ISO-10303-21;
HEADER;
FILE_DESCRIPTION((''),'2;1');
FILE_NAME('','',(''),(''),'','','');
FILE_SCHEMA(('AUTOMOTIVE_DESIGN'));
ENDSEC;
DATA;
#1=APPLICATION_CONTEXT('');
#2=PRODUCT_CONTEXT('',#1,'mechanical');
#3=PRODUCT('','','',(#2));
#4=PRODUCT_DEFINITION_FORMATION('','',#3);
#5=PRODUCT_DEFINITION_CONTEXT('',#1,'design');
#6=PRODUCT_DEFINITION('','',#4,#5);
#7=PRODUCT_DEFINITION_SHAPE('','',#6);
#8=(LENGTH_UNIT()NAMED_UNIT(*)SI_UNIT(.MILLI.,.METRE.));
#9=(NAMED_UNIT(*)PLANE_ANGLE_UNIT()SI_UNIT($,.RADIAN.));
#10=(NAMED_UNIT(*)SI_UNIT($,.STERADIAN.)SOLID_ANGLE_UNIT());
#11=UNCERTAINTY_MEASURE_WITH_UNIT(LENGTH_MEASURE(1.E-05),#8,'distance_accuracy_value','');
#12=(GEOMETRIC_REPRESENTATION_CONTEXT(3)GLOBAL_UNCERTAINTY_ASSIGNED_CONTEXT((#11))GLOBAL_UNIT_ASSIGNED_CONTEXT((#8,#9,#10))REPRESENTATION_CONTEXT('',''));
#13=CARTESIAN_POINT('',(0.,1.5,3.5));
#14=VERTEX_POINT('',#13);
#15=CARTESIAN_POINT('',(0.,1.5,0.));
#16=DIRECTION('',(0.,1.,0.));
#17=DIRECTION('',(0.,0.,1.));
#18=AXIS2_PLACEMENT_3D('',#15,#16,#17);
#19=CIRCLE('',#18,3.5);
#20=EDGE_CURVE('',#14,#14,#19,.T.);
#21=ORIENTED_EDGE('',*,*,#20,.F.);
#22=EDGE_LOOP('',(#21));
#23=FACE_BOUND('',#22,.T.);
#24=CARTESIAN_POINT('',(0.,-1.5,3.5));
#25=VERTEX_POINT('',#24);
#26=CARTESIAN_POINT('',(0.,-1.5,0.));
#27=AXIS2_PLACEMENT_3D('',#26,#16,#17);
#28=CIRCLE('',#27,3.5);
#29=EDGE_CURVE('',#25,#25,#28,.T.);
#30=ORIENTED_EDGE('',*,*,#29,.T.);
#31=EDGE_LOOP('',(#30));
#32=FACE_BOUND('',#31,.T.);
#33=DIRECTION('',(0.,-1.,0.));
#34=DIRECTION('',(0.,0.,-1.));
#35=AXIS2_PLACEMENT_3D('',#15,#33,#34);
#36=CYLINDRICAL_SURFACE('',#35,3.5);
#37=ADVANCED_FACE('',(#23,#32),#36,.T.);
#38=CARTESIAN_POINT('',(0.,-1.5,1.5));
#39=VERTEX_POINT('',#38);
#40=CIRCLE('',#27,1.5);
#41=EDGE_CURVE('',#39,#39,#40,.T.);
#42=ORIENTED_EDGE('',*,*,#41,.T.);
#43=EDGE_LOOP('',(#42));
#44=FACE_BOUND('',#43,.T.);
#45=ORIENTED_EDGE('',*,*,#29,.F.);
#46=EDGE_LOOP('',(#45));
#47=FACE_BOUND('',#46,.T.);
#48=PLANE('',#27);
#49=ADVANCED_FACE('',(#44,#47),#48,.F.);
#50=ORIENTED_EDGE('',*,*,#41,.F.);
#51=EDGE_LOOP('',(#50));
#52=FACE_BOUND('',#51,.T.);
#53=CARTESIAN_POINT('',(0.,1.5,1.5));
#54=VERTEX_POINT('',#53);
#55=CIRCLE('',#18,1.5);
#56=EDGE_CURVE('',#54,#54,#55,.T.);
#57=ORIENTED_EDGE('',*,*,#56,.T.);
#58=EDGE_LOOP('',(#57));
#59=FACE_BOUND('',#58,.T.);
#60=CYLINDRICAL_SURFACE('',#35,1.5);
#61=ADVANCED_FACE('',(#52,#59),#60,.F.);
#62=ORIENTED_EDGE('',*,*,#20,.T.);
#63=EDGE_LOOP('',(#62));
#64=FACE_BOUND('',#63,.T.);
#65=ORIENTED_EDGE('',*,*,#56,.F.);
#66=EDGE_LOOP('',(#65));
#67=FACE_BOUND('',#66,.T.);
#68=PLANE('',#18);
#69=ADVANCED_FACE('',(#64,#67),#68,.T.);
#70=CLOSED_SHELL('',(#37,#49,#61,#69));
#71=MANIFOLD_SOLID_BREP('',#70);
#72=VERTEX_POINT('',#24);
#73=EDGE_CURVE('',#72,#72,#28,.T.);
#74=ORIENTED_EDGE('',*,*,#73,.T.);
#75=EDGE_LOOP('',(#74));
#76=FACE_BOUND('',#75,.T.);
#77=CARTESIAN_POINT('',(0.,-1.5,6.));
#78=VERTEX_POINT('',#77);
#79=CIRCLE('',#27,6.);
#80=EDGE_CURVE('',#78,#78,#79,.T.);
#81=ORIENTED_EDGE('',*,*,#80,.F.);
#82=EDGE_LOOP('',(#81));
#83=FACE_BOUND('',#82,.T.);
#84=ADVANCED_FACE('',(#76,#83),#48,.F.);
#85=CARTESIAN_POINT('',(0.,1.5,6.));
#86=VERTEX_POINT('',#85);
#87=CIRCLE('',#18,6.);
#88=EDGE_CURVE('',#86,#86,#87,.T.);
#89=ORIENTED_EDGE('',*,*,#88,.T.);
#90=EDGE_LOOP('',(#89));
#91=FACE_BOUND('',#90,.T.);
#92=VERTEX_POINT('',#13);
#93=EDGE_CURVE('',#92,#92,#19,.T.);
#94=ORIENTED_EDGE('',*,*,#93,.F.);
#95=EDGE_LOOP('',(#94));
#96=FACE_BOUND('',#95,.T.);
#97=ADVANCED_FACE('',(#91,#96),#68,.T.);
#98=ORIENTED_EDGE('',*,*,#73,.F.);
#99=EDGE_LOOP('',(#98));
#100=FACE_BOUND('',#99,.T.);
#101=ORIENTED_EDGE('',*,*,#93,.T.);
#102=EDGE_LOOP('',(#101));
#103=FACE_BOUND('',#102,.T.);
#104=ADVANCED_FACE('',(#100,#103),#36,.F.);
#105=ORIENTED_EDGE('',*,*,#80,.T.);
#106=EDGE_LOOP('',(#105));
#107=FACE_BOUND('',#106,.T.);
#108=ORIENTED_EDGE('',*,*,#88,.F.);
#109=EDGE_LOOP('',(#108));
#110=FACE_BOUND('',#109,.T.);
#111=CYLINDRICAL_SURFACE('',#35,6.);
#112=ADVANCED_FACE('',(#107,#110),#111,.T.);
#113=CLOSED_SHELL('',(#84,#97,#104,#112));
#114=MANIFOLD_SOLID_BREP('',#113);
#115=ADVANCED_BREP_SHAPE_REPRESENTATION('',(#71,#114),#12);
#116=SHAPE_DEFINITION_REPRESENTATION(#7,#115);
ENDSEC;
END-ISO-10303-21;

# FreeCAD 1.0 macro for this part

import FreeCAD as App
import Part
import Sketcher

V = App.Vector
Q = App.Units.Quantity

doc = App.newDocument("Part")
body = doc.addObject("PartDesign::Body", "Body")

# Sketch on XZ plane
sketch1 = body.newObject("Sketcher::SketchObject", "Sketch")
sketch1.AttachmentSupport = (doc.getObject("XZ_Plane"), [""])
sketch1.MapMode = "FlatFace"
sketch1.addGeometry(Part.Circle(V(0, 0, 0), V(0, 0, 1), 3.5), False)
sketch1.addGeometry(Part.Circle(V(0, 0, 0), V(0, 0, 1), 1.5), False)
sketch1.addConstraint(Sketcher.Constraint("Coincident", 0, 3, -1, 1))
sketch1.addConstraint(Sketcher.Constraint("Coincident", 1, 3, -1, 1))
sketch1.addConstraint(Sketcher.Constraint("Diameter", 0, Q("7 mm")))
sketch1.addConstraint(Sketcher.Constraint("Diameter", 1, Q("3 mm")))
pad1 = body.newObject("PartDesign::Pad", "Pad")
pad1.Profile = sketch1
pad1.Length = 3
pad1.Midplane = True
body2 = doc.addObject("PartDesign::Body", "Body001")

# Sketch on XZ plane
sketch2 = body2.newObject("Sketcher::SketchObject", "Sketch001")
sketch2.AttachmentSupport = (doc.getObject("XZ_Plane001"), [""])
sketch2.MapMode = "FlatFace"
sketch2.addGeometry(Part.Circle(V(0, 0, 0), V(0, 0, 1), 6), False)
sketch2.addGeometry(Part.Circle(V(0, 0, 0), V(0, 0, 1), 3.5), False)
sketch2.addConstraint(Sketcher.Constraint("Coincident", 0, 3, -1, 1))
sketch2.addConstraint(Sketcher.Constraint("Coincident", 1, 3, -1, 1))
sketch2.addConstraint(Sketcher.Constraint("Diameter", 0, Q("12 mm")))
sketch2.addConstraint(Sketcher.Constraint("Diameter", 1, Q("7 mm")))
pad2 = body2.newObject("PartDesign::Pad", "Pad001")
pad2.Profile = sketch2
pad2.Length = 3
pad2.Midplane = True

doc.recompute()
